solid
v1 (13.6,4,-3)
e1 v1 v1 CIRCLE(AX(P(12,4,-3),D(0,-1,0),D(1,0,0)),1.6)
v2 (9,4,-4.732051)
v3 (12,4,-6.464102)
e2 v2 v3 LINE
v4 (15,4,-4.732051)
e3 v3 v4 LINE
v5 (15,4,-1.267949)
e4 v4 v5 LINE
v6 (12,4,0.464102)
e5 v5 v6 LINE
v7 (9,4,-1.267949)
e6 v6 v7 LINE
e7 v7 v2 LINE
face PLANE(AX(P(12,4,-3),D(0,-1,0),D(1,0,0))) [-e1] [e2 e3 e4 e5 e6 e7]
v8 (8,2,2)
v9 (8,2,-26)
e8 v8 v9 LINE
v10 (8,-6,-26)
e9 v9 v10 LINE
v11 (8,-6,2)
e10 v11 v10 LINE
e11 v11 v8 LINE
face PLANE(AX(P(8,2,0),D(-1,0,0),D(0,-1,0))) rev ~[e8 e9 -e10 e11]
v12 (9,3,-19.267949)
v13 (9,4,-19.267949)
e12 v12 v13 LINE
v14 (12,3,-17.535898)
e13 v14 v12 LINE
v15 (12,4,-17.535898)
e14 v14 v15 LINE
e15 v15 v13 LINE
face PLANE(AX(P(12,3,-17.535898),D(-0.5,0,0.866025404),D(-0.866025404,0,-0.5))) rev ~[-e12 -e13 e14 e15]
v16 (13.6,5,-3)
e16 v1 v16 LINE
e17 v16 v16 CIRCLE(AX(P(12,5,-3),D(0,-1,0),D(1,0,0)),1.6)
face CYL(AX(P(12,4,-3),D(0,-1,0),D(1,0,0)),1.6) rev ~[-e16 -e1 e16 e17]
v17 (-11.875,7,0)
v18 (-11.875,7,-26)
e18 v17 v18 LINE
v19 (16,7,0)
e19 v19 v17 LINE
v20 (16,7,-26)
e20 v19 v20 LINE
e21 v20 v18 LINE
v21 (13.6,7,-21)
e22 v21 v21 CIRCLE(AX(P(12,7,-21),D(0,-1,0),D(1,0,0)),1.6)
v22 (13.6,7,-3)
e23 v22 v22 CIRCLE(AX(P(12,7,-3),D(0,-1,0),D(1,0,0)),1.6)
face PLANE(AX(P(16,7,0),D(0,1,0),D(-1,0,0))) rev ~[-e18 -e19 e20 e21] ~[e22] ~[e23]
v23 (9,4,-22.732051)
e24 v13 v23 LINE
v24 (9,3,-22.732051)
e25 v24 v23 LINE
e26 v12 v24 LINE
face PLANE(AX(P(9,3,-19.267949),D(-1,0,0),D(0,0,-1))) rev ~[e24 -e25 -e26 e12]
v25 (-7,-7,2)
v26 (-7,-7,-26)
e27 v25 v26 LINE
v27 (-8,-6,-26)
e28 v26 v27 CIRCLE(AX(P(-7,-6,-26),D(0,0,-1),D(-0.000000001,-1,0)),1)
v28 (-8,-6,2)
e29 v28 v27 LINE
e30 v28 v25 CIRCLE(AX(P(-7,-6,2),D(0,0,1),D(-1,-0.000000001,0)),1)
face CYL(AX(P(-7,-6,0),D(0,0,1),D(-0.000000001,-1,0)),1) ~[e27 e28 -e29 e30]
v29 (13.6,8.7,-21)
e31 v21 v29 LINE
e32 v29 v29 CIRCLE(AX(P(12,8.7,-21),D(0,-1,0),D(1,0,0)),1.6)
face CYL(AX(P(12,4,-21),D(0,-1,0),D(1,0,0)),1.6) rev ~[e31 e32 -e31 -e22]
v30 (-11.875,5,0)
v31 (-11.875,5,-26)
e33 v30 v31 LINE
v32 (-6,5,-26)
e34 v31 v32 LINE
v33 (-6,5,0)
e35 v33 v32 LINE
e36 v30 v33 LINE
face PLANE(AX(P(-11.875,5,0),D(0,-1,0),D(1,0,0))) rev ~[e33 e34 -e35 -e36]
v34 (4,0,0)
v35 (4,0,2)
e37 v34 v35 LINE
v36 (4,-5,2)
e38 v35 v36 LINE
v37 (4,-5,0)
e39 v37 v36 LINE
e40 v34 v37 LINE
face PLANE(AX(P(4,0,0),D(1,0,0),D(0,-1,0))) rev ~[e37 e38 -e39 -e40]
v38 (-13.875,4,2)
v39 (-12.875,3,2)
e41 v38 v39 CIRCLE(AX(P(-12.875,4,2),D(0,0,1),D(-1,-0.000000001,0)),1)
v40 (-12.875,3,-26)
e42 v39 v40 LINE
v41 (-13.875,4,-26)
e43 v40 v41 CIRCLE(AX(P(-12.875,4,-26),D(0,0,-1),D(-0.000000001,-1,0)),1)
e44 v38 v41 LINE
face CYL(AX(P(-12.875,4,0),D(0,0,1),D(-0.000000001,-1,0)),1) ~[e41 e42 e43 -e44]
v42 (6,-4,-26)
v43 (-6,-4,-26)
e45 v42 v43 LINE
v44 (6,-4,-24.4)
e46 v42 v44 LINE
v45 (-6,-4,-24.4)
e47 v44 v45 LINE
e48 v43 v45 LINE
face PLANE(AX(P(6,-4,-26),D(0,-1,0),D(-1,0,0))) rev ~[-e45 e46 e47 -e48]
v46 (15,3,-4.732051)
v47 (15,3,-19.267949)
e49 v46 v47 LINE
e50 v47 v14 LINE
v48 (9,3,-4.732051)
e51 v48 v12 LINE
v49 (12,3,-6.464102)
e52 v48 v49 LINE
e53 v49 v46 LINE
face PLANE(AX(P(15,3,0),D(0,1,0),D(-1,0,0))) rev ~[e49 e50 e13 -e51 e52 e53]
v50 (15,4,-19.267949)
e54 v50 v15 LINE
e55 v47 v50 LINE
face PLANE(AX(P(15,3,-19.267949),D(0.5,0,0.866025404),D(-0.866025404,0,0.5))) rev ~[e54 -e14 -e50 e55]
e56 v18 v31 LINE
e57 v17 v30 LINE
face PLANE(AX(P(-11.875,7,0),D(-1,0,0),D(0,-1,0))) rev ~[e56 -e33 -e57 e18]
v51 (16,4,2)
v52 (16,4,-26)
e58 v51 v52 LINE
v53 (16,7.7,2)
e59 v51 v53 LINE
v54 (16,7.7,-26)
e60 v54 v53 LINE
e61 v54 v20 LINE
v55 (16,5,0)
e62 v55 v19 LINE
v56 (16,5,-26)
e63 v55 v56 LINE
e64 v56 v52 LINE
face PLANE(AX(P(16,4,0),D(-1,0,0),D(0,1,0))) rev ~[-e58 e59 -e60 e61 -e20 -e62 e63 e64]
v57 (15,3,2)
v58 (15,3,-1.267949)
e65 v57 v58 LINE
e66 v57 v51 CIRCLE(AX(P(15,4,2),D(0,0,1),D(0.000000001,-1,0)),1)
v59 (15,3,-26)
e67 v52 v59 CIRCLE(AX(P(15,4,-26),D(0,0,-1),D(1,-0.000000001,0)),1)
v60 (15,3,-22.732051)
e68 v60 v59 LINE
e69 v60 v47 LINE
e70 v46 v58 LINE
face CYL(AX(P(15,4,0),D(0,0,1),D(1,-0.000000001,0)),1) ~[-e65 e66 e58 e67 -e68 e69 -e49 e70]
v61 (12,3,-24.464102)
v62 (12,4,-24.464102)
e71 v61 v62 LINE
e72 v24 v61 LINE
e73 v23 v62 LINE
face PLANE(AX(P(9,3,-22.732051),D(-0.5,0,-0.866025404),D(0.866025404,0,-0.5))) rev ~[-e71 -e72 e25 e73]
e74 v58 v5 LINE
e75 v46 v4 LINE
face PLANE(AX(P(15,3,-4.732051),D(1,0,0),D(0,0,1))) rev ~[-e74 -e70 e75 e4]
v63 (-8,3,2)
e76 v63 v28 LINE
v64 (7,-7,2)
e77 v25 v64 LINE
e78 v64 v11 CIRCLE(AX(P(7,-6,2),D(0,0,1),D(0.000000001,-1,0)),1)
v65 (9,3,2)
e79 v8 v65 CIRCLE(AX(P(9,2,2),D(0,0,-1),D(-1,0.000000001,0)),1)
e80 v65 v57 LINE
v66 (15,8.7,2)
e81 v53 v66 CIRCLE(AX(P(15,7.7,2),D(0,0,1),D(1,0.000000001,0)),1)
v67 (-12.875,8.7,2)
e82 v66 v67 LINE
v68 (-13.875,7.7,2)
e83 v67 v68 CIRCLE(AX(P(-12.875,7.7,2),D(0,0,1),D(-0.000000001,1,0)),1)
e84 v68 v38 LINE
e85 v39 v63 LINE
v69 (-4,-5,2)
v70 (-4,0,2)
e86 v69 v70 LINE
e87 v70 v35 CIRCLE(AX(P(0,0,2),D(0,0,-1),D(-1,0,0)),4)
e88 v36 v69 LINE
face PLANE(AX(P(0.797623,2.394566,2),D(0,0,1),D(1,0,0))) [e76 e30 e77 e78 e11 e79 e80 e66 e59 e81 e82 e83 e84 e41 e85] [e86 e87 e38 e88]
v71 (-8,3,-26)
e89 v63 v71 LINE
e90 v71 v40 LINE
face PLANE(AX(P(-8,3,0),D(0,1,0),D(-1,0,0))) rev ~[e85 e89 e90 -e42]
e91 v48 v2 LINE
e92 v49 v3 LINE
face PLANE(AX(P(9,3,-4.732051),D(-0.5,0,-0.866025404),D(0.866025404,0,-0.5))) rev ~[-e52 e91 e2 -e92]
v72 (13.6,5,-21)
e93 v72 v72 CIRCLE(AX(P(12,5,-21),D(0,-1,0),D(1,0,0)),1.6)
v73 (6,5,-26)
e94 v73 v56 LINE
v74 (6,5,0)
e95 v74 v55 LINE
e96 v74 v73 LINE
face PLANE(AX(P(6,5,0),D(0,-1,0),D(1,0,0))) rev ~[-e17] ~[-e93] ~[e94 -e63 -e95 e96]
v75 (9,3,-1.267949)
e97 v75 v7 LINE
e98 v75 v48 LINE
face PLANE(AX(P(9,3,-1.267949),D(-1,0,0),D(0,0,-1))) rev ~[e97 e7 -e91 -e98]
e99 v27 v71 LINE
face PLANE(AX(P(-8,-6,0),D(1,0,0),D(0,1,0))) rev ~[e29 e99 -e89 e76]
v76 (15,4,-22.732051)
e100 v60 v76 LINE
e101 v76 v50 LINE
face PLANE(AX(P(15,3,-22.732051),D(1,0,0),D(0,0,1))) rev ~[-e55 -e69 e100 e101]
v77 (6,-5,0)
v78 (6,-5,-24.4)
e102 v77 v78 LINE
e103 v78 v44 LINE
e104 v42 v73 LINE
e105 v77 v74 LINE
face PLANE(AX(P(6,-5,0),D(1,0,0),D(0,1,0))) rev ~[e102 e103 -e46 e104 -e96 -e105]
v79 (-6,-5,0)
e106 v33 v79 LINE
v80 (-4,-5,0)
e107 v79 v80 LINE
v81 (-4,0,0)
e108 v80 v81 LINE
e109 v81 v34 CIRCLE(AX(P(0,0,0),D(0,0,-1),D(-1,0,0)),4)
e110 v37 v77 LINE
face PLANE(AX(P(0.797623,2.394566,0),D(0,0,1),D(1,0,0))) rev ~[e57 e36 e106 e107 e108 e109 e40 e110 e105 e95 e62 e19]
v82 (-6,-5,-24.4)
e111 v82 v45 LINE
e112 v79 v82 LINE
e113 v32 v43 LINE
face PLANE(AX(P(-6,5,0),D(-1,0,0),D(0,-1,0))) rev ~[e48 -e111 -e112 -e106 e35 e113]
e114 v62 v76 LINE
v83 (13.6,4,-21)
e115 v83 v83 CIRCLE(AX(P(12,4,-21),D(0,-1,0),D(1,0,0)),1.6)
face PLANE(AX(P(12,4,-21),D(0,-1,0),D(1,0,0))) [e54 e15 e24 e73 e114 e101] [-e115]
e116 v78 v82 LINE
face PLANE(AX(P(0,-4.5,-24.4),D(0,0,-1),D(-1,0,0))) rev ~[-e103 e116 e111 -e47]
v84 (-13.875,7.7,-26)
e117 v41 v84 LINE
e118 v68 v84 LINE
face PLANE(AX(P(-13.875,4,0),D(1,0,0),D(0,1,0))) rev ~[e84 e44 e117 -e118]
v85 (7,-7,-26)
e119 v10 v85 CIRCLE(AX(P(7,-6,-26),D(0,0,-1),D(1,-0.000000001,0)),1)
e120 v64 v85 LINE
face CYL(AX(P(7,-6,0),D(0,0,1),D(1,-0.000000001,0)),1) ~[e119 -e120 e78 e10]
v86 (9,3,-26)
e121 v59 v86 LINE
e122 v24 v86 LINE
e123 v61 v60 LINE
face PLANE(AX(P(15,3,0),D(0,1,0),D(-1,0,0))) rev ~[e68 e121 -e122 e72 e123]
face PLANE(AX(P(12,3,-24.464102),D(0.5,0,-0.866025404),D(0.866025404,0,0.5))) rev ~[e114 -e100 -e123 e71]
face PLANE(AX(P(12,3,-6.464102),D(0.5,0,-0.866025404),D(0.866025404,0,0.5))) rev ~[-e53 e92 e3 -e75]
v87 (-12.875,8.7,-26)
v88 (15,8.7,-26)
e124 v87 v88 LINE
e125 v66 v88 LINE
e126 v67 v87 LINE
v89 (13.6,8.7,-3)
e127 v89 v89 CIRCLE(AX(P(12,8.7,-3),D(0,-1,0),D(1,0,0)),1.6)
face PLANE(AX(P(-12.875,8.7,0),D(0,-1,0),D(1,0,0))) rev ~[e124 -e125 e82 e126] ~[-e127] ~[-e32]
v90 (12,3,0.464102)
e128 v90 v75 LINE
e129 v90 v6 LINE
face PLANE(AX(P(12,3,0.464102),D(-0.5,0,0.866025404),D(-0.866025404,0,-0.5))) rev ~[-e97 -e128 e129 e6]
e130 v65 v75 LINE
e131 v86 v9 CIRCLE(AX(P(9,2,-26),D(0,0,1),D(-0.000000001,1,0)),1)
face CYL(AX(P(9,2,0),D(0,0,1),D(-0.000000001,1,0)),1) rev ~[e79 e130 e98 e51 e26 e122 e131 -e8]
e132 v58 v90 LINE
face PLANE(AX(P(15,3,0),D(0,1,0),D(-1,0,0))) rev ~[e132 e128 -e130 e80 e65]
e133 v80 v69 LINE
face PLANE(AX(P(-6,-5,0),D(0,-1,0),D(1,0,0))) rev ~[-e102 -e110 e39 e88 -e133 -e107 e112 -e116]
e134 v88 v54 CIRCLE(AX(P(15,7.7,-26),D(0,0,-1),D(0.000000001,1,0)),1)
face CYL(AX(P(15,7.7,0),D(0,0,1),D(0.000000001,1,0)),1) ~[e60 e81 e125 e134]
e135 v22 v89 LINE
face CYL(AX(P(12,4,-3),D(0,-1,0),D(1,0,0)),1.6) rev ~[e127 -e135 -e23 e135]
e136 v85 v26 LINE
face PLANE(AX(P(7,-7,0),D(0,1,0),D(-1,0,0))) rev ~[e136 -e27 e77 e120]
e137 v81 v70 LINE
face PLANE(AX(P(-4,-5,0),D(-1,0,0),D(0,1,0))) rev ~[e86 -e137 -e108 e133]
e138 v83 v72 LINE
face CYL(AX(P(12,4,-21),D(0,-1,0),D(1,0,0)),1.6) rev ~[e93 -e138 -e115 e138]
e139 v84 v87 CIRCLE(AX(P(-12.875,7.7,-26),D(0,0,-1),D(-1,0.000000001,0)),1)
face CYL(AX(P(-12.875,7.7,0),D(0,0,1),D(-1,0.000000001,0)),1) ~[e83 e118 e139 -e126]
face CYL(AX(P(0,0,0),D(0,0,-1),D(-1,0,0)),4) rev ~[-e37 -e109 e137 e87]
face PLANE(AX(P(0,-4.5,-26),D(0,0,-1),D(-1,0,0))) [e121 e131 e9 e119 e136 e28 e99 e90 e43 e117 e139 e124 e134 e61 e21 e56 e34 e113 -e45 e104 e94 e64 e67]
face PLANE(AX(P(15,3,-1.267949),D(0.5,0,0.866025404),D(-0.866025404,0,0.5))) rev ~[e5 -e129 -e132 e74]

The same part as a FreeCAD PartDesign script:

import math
import FreeCAD as App
import Part
import Sketcher

V = App.Vector
Q = App.Units.Quantity


def add_polygon(sketch, points):
    """Adds a closed chain of lines whose ends are joined by coincident constraints."""
    first, n = sketch.GeometryCount, len(points)
    for a, b in zip(points, points[1:] + points[:1]):
        sketch.addGeometry(Part.LineSegment(App.Vector(*a, 0), App.Vector(*b, 0)), False)
    for i in range(n):
        sketch.addConstraint(Sketcher.Constraint("Coincident", first + i, 2, first + (i + 1) % n, 1))

doc = App.newDocument("Part")
body = doc.addObject("PartDesign::Body", "Body")

sketch1 = doc.addObject("Sketcher::SketchObject", "Sketch")
body.addObject(sketch1)
sketch1.AttachmentSupport = (doc.XY_Plane, [""])
sketch1.MapMode = "FlatFace"
sketch1.addGeometry([
    Part.ArcOfCircle(Part.Circle(V(9, 2, 0), V(0, 0, 1), 1), math.radians(90), math.radians(180)),
    Part.LineSegment(V(9, 3, 0), V(15, 3, 0)),
    Part.ArcOfCircle(Part.Circle(V(15, 4, 0), V(0, 0, 1), 1), math.radians(-90), math.radians(0)),
    Part.LineSegment(V(16, 4, 0), V(16, 7.7, 0)),
    Part.ArcOfCircle(Part.Circle(V(15, 7.7, 0), V(0, 0, 1), 1), math.radians(0), math.radians(90)),
    Part.LineSegment(V(15, 8.7, 0), V(-12.9, 8.7, 0)),
    Part.ArcOfCircle(Part.Circle(V(-12.9, 7.7, 0), V(0, 0, 1), 1), math.radians(90), math.radians(180)),
    Part.LineSegment(V(-13.9, 7.7, 0), V(-13.9, 4, 0)),
    Part.ArcOfCircle(Part.Circle(V(-12.9, 4, 0), V(0, 0, 1), 1), math.radians(-180), math.radians(-90)),
    Part.LineSegment(V(-12.9, 3, 0), V(-8, 3, 0)),
    Part.LineSegment(V(-8, 3, 0), V(-8, -6, 0)),
    Part.ArcOfCircle(Part.Circle(V(-7, -6, 0), V(0, 0, 1), 1), math.radians(-180), math.radians(-90)),
    Part.LineSegment(V(-7, -7, 0), V(7, -7, 0)),
    Part.ArcOfCircle(Part.Circle(V(7, -6, 0), V(0, 0, 1), 1), math.radians(-90), math.radians(0)),
    Part.LineSegment(V(8, -6, 0), V(8, 2, 0)),
    Part.LineSegment(V(4, 0, 0), V(4, -5, 0)),
    Part.LineSegment(V(4, -5, 0), V(-4, -5, 0)),
    Part.LineSegment(V(-4, -5, 0), V(-4, 0, 0)),
    Part.ArcOfCircle(Part.Circle(V(0, 0, 0), V(0, 0, 1), 4), math.radians(0), math.radians(180)),
], False)
sketch1.addConstraint([
    Sketcher.Constraint("Tangent", 0, 1, 1, 1),
    Sketcher.Constraint("Tangent", 1, 2, 2, 1),
    Sketcher.Constraint("Tangent", 2, 2, 3, 1),
    Sketcher.Constraint("Tangent", 3, 2, 4, 1),
    Sketcher.Constraint("Tangent", 4, 2, 5, 1),
    Sketcher.Constraint("Tangent", 5, 2, 6, 1),
    Sketcher.Constraint("Tangent", 6, 2, 7, 1),
    Sketcher.Constraint("Tangent", 7, 2, 8, 1),
    Sketcher.Constraint("Tangent", 8, 2, 9, 1),
    Sketcher.Constraint("Coincident", 9, 2, 10, 1),
    Sketcher.Constraint("Tangent", 10, 2, 11, 1),
    Sketcher.Constraint("Tangent", 11, 2, 12, 1),
    Sketcher.Constraint("Tangent", 12, 2, 13, 1),
    Sketcher.Constraint("Tangent", 13, 2, 14, 1),
    Sketcher.Constraint("Tangent", 14, 2, 0, 2),
    Sketcher.Constraint("Coincident", 15, 2, 16, 1),
    Sketcher.Constraint("Coincident", 16, 2, 17, 1),
    Sketcher.Constraint("Tangent", 17, 2, 18, 2),
    Sketcher.Constraint("Tangent", 18, 1, 15, 1),
    Sketcher.Constraint("Horizontal", 1),
    Sketcher.Constraint("Vertical", 3),
    Sketcher.Constraint("Horizontal", 5),
    Sketcher.Constraint("Vertical", 7),
    Sketcher.Constraint("Horizontal", 9),
    Sketcher.Constraint("Vertical", 10),
    Sketcher.Constraint("Horizontal", 12),
    Sketcher.Constraint("Vertical", 14),
    Sketcher.Constraint("Vertical", 15),
    Sketcher.Constraint("Horizontal", 16),
    Sketcher.Constraint("Vertical", 17),
    Sketcher.Constraint("Coincident", 18, 3, -1, 1),
    Sketcher.Constraint("Equal", 0, 2),
    Sketcher.Constraint("Equal", 2, 4),
    Sketcher.Constraint("Equal", 4, 6),
    Sketcher.Constraint("Equal", 6, 8),
    Sketcher.Constraint("Equal", 8, 11),
    Sketcher.Constraint("Equal", 11, 13),
    Sketcher.Constraint("Horizontal", 2, 3, 8, 3),
    Sketcher.Constraint("Equal", 16, 14),
    Sketcher.Constraint("Radius", 0, Q("1 mm")),
    Sketcher.Constraint("Radius", 18, Q("4 mm")),
    Sketcher.Constraint("DistanceX", 1, 1, 1, 2, Q("6 mm")),
    Sketcher.Constraint("DistanceX", 12, 1, 12, 2, Q("14 mm")),
    Sketcher.Constraint("DistanceY", 15, 2, 15, 1, Q("5 mm")),
    Sketcher.Constraint("DistanceY", 3, 1, 3, 2, Q("3.7 mm")),
    Sketcher.Constraint("DistanceX", -1, 1, 0, 3, Q("9 mm")),
    Sketcher.Constraint("DistanceY", -1, 1, 0, 3, Q("2 mm")),
    Sketcher.Constraint("DistanceX", 5, 2, 5, 1, Q("27.875 mm")),
])
pad1 = doc.addObject("PartDesign::Pad", "Pad")
body.addObject(pad1)
pad1.Profile = sketch1
pad1.Length = 2

sketch2 = doc.addObject("Sketcher::SketchObject", "Sketch001")
body.addObject(sketch2)
sketch2.AttachmentSupport = (doc.XY_Plane, [""])
sketch2.MapMode = "FlatFace"
sketch2.addGeometry([
    Part.LineSegment(V(-6, -5, 0), V(6, -5, 0)),
    Part.LineSegment(V(6, -5, 0), V(6, 5, 0)),
    Part.LineSegment(V(6, 5, 0), V(16, 5, 0)),
    Part.LineSegment(V(16, 5, 0), V(16, 4, 0)),
    Part.ArcOfCircle(Part.Circle(V(15, 4, 0), V(0, 0, 1), 1), math.radians(-90), math.radians(0)),
    Part.LineSegment(V(15, 3, 0), V(9, 3, 0)),
    Part.ArcOfCircle(Part.Circle(V(9, 2, 0), V(0, 0, 1), 1), math.radians(90), math.radians(180)),
    Part.LineSegment(V(8, 2, 0), V(8, -6, 0)),
    Part.ArcOfCircle(Part.Circle(V(7, -6, 0), V(0, 0, 1), 1), math.radians(-90), math.radians(0)),
    Part.LineSegment(V(7, -7, 0), V(-7, -7, 0)),
    Part.ArcOfCircle(Part.Circle(V(-7, -6, 0), V(0, 0, 1), 1), math.radians(-180), math.radians(-90)),
    Part.LineSegment(V(-8, -6, 0), V(-8, 3, 0)),
    Part.LineSegment(V(-8, 3, 0), V(-12.9, 3, 0)),
    Part.ArcOfCircle(Part.Circle(V(-12.9, 4, 0), V(0, 0, 1), 1), math.radians(-180), math.radians(-90)),
    Part.LineSegment(V(-13.9, 4, 0), V(-13.9, 7.7, 0)),
    Part.ArcOfCircle(Part.Circle(V(-12.9, 7.7, 0), V(0, 0, 1), 1), math.radians(90), math.radians(180)),
    Part.LineSegment(V(-12.9, 8.7, 0), V(15, 8.7, 0)),
    Part.ArcOfCircle(Part.Circle(V(15, 7.7, 0), V(0, 0, 1), 1), math.radians(0), math.radians(90)),
    Part.LineSegment(V(16, 7.7, 0), V(16, 7, 0)),
    Part.LineSegment(V(16, 7, 0), V(-11.9, 7, 0)),
    Part.LineSegment(V(-11.9, 7, 0), V(-11.9, 5, 0)),
    Part.LineSegment(V(-11.9, 5, 0), V(-6, 5, 0)),
    Part.LineSegment(V(-6, 5, 0), V(-6, -5, 0)),
], False)
sketch2.addConstraint([
    Sketcher.Constraint("Coincident", 0, 2, 1, 1),
    Sketcher.Constraint("Coincident", 1, 2, 2, 1),
    Sketcher.Constraint("Coincident", 2, 2, 3, 1),
    Sketcher.Constraint("Tangent", 3, 2, 4, 2),
    Sketcher.Constraint("Tangent", 4, 1, 5, 1),
    Sketcher.Constraint("Tangent", 5, 2, 6, 1),
    Sketcher.Constraint("Tangent", 6, 2, 7, 1),
    Sketcher.Constraint("Tangent", 7, 2, 8, 2),
    Sketcher.Constraint("Tangent", 8, 1, 9, 1),
    Sketcher.Constraint("Tangent", 9, 2, 10, 2),
    Sketcher.Constraint("Tangent", 10, 1, 11, 1),
    Sketcher.Constraint("Coincident", 11, 2, 12, 1),
    Sketcher.Constraint("Tangent", 12, 2, 13, 2),
    Sketcher.Constraint("Tangent", 13, 1, 14, 1),
    Sketcher.Constraint("Tangent", 14, 2, 15, 2),
    Sketcher.Constraint("Tangent", 15, 1, 16, 1),
    Sketcher.Constraint("Tangent", 16, 2, 17, 2),
    Sketcher.Constraint("Tangent", 17, 1, 18, 1),
    Sketcher.Constraint("Coincident", 18, 2, 19, 1),
    Sketcher.Constraint("Coincident", 19, 2, 20, 1),
    Sketcher.Constraint("Coincident", 20, 2, 21, 1),
    Sketcher.Constraint("Coincident", 21, 2, 22, 1),
    Sketcher.Constraint("Coincident", 22, 2, 0, 1),
    Sketcher.Constraint("Horizontal", 0),
    Sketcher.Constraint("Vertical", 1),
    Sketcher.Constraint("Horizontal", 2),
    Sketcher.Constraint("Vertical", 3),
    Sketcher.Constraint("Horizontal", 5),
    Sketcher.Constraint("Vertical", 7),
    Sketcher.Constraint("Horizontal", 9),
    Sketcher.Constraint("Vertical", 11),
    Sketcher.Constraint("Horizontal", 12),
    Sketcher.Constraint("Vertical", 14),
    Sketcher.Constraint("Horizontal", 16),
    Sketcher.Constraint("Vertical", 18),
    Sketcher.Constraint("Horizontal", 19),
    Sketcher.Constraint("Vertical", 20),
    Sketcher.Constraint("Horizontal", 21),
    Sketcher.Constraint("Vertical", 22),
    Sketcher.Constraint("Equal", 4, 6),
    Sketcher.Constraint("Equal", 6, 8),
    Sketcher.Constraint("Equal", 8, 10),
    Sketcher.Constraint("Equal", 10, 13),
    Sketcher.Constraint("Equal", 13, 15),
    Sketcher.Constraint("Equal", 15, 17),
    Sketcher.Constraint("Symmetric", 0, 2, 21, 2, -1, 1),
    Sketcher.Constraint("Horizontal", 4, 3, 13, 3),
    Sketcher.Constraint("Horizontal", 2, 2, 20, 2),
    Sketcher.Constraint("Vertical", 4, 3, 17, 3),
    Sketcher.Constraint("Equal", 16, 19),
    Sketcher.Constraint("Equal", 2, 1),
    Sketcher.Constraint("Radius", 4, Q("1 mm")),
    Sketcher.Constraint("DistanceX", 0, 1, 0, 2, Q("12 mm")),
    Sketcher.Constraint("DistanceX", 2, 1, 2, 2, Q("10 mm")),
    Sketcher.Constraint("DistanceX", 5, 2, 5, 1, Q("6 mm")),
    Sketcher.Constraint("DistanceX", 9, 2, 9, 1, Q("14 mm")),
    Sketcher.Constraint("DistanceY", 3, 2, 3, 1, Q("1 mm")),
    Sketcher.Constraint("DistanceY", 7, 2, 7, 1, Q("8 mm")),
    Sketcher.Constraint("DistanceY", 20, 2, 20, 1, Q("2 mm")),
    Sketcher.Constraint("DistanceY", 14, 1, 14, 2, Q("3.7 mm")),
    Sketcher.Constraint("DistanceX", 12, 2, 12, 1, Q("4.875 mm")),
])
pad2 = doc.addObject("PartDesign::Pad", "Pad001")
body.addObject(pad2)
pad2.Profile = sketch2
pad2.Length = 26
pad2.Reversed = True

sketch3 = doc.addObject("Sketcher::SketchObject", "Sketch002")
body.addObject(sketch3)
sketch3.AttachmentSupport = (doc.XY_Plane, [""])
sketch3.MapMode = "FlatFace"
sketch3.AttachmentOffset = App.Placement(V(0, 0, -26), App.Rotation())
add_polygon(sketch3, [(6, -4), (6, -5), (-6, -5), (-6, -4)])
sketch3.addConstraint([
    Sketcher.Constraint("Vertical", 0),
    Sketcher.Constraint("Horizontal", 1),
    Sketcher.Constraint("Vertical", 2),
    Sketcher.Constraint("Horizontal", 3),
    Sketcher.Constraint("DistanceX", 1, 2, 1, 1, Q("12 mm")),
    Sketcher.Constraint("DistanceY", 0, 2, 0, 1, Q("1 mm")),
    Sketcher.Constraint("DistanceX", -1, 1, 0, 2, Q("6 mm")),
    Sketcher.Constraint("DistanceY", 0, 2, -1, 1, Q("5 mm")),
])
pad3 = doc.addObject("PartDesign::Pad", "Pad002")
body.addObject(pad3)
pad3.Profile = sketch3
pad3.Length = 1.6

sketch4 = doc.addObject("Sketcher::SketchObject", "Sketch003")
body.addObject(sketch4)
sketch4.AttachmentSupport = (doc.XZ_Plane, [""])
sketch4.MapMode = "FlatFace"
sketch4.AttachmentOffset = App.Placement(V(0, 0, -3), App.Rotation())
add_polygon(sketch4, [(15, -19.3), (12, -17.5), (9, -19.3), (9, -22.7), (12, -24.5), (15, -22.7)])
add_polygon(sketch4, [(9, -1.3), (9, -4.7), (12, -6.5), (15, -4.7), (15, -1.3), (12, 0.5)])
sketch4.addConstraint([
    Sketcher.Constraint("Vertical", 2),
    Sketcher.Constraint("Vertical", 5),
    Sketcher.Constraint("Vertical", 6),
    Sketcher.Constraint("Vertical", 9),
    Sketcher.Constraint("Parallel", 0, 3),
    Sketcher.Constraint("Parallel", 1, 4),
    Sketcher.Constraint("Parallel", 3, 7),
    Sketcher.Constraint("Parallel", 4, 8),
    Sketcher.Constraint("Parallel", 7, 10),
    Sketcher.Constraint("Parallel", 8, 11),
    Sketcher.Constraint("Horizontal", 2, 2, 4, 2),
    Sketcher.Constraint("Horizontal", 1, 2, 5, 2),
    Sketcher.Constraint("Horizontal", 6, 2, 8, 2),
    Sketcher.Constraint("Horizontal", 9, 2, 11, 2),
    Sketcher.Constraint("Vertical", 0, 2, 3, 2),
    Sketcher.Constraint("Vertical", 2, 2, 6, 2),
    Sketcher.Constraint("Vertical", 3, 2, 7, 2),
    Sketcher.Constraint("Equal", 5, 6),
    Sketcher.Constraint("Angle", 0, Q("150 deg")),
    Sketcher.Constraint("DistanceX", -1, 1, 0, 2, Q("12 mm")),
    Sketcher.Constraint("DistanceX", -1, 1, 1, 2, Q("9 mm")),
    Sketcher.Constraint("DistanceY", 2, 2, 6, 2, Q("18 mm")),
    Sketcher.Constraint("DistanceY", 2, 2, 2, 1, Q("3.464102 mm")),
    Sketcher.Constraint("DistanceY", 0, 2, -1, 1, Q("17.535898 mm")),
])
pocket1 = doc.addObject("PartDesign::Pocket", "Pocket")
body.addObject(pocket1)
pocket1.Profile = sketch4
pocket1.Type = "TwoLengths"
pocket1.Length = 11
pocket1.Length2 = 1
pocket1.Reversed = True

sketch5 = doc.addObject("Sketcher::SketchObject", "Sketch004")
body.addObject(sketch5)
sketch5.AttachmentSupport = (doc.XZ_Plane, [""])
sketch5.MapMode = "FlatFace"
sketch5.AttachmentOffset = App.Placement(V(0, 0, -4), App.Rotation())
sketch5.addGeometry([
    Part.Circle(V(12, -21, 0), V(0, 0, 1), 1.6),
    Part.Circle(V(12, -3, 0), V(0, 0, 1), 1.6),
], False)
sketch5.addConstraint([
    Sketcher.Constraint("Equal", 0, 1),
    Sketcher.Constraint("Vertical", 0, 3, 1, 3),
    Sketcher.Constraint("Diameter", 0, Q("3.2 mm")),
    Sketcher.Constraint("DistanceX", -1, 1, 0, 3, Q("12 mm")),
    Sketcher.Constraint("DistanceY", 0, 3, -1, 1, Q("21 mm")),
    Sketcher.Constraint("DistanceY", 1, 3, -1, 1, Q("3 mm")),
])
pocket2 = doc.addObject("PartDesign::Pocket", "Pocket001")
body.addObject(pocket2)
pocket2.Profile = sketch5
pocket2.Type = "ThroughAll"

doc.recompute()
